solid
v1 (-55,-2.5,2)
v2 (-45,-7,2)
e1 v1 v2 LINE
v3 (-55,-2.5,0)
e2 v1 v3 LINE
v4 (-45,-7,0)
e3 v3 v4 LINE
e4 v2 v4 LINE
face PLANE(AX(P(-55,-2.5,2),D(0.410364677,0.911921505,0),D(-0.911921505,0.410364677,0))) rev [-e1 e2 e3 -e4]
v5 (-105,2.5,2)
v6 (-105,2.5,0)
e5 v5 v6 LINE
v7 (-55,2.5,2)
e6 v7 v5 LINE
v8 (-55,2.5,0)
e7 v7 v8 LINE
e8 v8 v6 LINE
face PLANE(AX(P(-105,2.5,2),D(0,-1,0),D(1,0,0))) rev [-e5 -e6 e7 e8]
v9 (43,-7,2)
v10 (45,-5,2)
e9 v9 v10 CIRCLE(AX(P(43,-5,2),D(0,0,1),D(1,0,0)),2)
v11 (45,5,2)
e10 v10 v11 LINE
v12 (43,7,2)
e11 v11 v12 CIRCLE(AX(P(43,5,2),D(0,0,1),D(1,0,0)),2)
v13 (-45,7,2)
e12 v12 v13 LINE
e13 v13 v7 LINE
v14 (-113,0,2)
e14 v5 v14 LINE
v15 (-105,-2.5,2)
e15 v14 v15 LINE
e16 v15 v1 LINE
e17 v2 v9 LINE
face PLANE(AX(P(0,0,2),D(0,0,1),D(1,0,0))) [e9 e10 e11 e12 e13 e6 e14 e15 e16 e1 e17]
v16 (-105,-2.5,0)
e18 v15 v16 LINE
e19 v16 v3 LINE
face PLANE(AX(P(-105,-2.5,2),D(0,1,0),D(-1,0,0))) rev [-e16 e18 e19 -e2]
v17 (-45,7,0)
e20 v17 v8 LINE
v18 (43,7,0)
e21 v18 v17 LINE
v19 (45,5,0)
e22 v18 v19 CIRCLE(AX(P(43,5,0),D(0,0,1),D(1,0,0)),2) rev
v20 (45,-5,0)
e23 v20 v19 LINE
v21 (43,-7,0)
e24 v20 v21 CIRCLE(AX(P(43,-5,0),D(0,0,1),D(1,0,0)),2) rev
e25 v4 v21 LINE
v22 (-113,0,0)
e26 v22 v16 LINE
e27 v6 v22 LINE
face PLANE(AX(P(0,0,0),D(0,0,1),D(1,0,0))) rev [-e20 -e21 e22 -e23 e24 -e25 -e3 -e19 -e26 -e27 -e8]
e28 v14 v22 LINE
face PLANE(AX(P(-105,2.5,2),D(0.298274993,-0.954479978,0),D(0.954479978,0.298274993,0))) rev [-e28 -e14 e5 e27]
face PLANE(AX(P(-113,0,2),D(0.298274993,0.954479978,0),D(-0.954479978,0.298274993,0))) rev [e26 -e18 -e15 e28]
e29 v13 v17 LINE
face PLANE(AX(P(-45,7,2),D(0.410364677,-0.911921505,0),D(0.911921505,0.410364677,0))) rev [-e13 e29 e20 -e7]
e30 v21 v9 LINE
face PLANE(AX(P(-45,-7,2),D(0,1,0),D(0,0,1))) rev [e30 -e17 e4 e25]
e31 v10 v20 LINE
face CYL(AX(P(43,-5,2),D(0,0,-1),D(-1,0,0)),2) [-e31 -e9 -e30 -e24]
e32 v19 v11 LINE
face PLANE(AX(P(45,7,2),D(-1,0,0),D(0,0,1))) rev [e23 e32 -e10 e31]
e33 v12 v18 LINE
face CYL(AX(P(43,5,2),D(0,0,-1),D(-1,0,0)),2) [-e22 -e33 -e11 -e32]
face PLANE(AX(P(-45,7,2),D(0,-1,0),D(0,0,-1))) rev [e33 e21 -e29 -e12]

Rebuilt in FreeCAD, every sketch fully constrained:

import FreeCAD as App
import Part
import Sketcher
Q = App.Units.Quantity


def edges_at(feature, points):
    """Names of the edges that pass closest to the given points."""
    edges = feature.Shape.Edges
    near = lambda p: min(range(len(edges)), key=lambda i: edges[i].distToShape(Part.Vertex(*p))[0])
    return sorted({f"Edge{near(p) + 1}" for p in points})


def add_polygon(sketch, points):
    """Adds a closed chain of lines whose ends are joined by coincident constraints."""
    first, n = sketch.GeometryCount, len(points)
    for a, b in zip(points, points[1:] + points[:1]):
        sketch.addGeometry(Part.LineSegment(App.Vector(*a, 0), App.Vector(*b, 0)), False)
    for i in range(n):
        sketch.addConstraint(Sketcher.Constraint("Coincident", first + i, 2, first + (i + 1) % n, 1))

doc = App.newDocument("Part")
body = doc.addObject("PartDesign::Body", "Body")

sketch1 = body.newObject("Sketcher::SketchObject", "Sketch")
sketch1.AttachmentSupport = (doc.getObject("XY_Plane"), [""])
sketch1.MapMode = "FlatFace"
add_polygon(sketch1, [(-45, 7), (-55, 2.5), (-105, 2.5), (-113, 0), (-105, -2.5), (-55, -2.5), (-45, -7), (45, -7), (45, 7)])
sketch1.addConstraint([
    Sketcher.Constraint("Horizontal", 1),
    Sketcher.Constraint("Horizontal", 4),
    Sketcher.Constraint("Horizontal", 6),
    Sketcher.Constraint("Vertical", 7),
    Sketcher.Constraint("Horizontal", 8),
    Sketcher.Constraint("Symmetric", 5, 2, 7, 2, -1, 1),
    Sketcher.Constraint("Symmetric", 1, 2, 3, 2, -1),
    Sketcher.Constraint("PointOnObject", 2, 2, -1),
    Sketcher.Constraint("Vertical", 0, 2, 4, 2),
    Sketcher.Constraint("Vertical", 5, 2, 8, 2),
    Sketcher.Constraint("DistanceX", 1, 2, 1, 1, Q("50 mm")),
    Sketcher.Constraint("DistanceX", 6, 1, 6, 2, Q("90 mm")),
    Sketcher.Constraint("DistanceY", 7, 1, 7, 2, Q("14 mm")),
    Sketcher.Constraint("DistanceX", 0, 2, -1, 1, Q("55 mm")),
    Sketcher.Constraint("DistanceX", 2, 2, -1, 1, Q("113 mm")),
    Sketcher.Constraint("DistanceY", 3, 2, 1, 2, Q("5 mm")),
])
pad1 = body.newObject("PartDesign::Pad", "Pad")
pad1.Profile = sketch1
pad1.Length = 2
doc.recompute()

fillet = body.newObject("PartDesign::Fillet", "Fillet")
fillet.Base = (pad1, edges_at(pad1, [(45, -7, 1), (45, 7, 1)]))
fillet.Radius = 2

doc.recompute()
